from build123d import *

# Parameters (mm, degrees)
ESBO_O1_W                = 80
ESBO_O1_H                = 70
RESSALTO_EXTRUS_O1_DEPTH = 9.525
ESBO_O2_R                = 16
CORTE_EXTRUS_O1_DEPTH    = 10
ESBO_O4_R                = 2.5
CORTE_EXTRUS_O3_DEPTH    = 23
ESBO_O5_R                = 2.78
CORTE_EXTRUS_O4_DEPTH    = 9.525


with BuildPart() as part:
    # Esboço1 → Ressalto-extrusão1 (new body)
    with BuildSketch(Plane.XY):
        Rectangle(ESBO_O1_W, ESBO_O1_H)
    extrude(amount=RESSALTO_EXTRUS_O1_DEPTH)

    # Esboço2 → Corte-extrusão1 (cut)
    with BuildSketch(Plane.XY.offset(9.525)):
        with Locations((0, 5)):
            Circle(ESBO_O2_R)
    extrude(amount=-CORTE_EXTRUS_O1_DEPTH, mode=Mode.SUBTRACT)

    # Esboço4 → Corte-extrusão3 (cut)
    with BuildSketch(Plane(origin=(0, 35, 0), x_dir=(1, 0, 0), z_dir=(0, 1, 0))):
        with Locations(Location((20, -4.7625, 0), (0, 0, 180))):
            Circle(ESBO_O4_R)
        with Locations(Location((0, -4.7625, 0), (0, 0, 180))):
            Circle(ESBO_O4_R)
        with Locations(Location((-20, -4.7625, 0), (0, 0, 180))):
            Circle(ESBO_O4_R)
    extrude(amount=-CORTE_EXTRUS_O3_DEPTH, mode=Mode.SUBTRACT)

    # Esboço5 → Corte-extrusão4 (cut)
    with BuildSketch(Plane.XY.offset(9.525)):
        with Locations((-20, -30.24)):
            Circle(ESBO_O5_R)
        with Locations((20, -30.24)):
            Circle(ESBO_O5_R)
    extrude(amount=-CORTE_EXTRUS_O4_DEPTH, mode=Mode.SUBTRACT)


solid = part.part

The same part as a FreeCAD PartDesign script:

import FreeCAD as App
import Part
import Sketcher

doc = App.newDocument("Part")
body = doc.addObject("PartDesign::Body", "Body")

# Sketch on XY plane
sketch1 = doc.addObject("Sketcher::SketchObject", "Sketch")
body.addObject(sketch1)
sketch1.AttachmentSupport = (doc.XY_Plane, [""])
sketch1.MapMode = "FlatFace"
sketch1.addGeometry([
    Part.LineSegment(App.Vector(-40, 35, 0), App.Vector(-40, -35, 0)),
    Part.LineSegment(App.Vector(-40, -35, 0), App.Vector(40, -35, 0)),
    Part.LineSegment(App.Vector(40, -35, 0), App.Vector(40, 35, 0)),
    Part.LineSegment(App.Vector(40, 35, 0), App.Vector(-40, 35, 0)),
], False)
sketch1.addConstraint([
    Sketcher.Constraint("Coincident", 0, 2, 1, 1),
    Sketcher.Constraint("Coincident", 1, 2, 2, 1),
    Sketcher.Constraint("Coincident", 2, 2, 3, 1),
    Sketcher.Constraint("Coincident", 3, 2, 0, 1),
    Sketcher.Constraint("Vertical", 0),
    Sketcher.Constraint("Horizontal", 1),
    Sketcher.Constraint("Vertical", 2),
    Sketcher.Constraint("Horizontal", 3),
    Sketcher.Constraint("Symmetric", 0, 2, 2, 2, -1, 1),
    Sketcher.Constraint("DistanceX", 1, 1, 1, 2, 80.0),
    Sketcher.Constraint("DistanceY", 0, 2, 0, 1, 70.0),
])
pad1 = doc.addObject("PartDesign::Pad", "Pad")
body.addObject(pad1)
pad1.Profile = sketch1
pad1.Length = 9.525

# Sketch on XY plane
sketch2 = doc.addObject("Sketcher::SketchObject", "Sketch001")
body.addObject(sketch2)
sketch2.AttachmentSupport = (doc.XY_Plane, [""])
sketch2.MapMode = "FlatFace"
sketch2.AttachmentOffset = App.Placement(App.Vector(0, 0, 9.525), App.Rotation())
sketch2.addGeometry(Part.Circle(App.Vector(0, 5, 0), App.Vector(0, 0, 1), 16), False)
sketch2.addConstraint([
    Sketcher.Constraint("PointOnObject", 0, 3, -2),
    Sketcher.Constraint("Diameter", 0, 32.0),
    Sketcher.Constraint("DistanceY", -1, 1, 0, 3, 5.0),
])
pocket1 = doc.addObject("PartDesign::Pocket", "Pocket")
body.addObject(pocket1)
pocket1.Profile = sketch2
pocket1.Length = 10

# Sketch on XZ plane
sketch3 = doc.addObject("Sketcher::SketchObject", "Sketch002")
body.addObject(sketch3)
sketch3.AttachmentSupport = (doc.XZ_Plane, [""])
sketch3.MapMode = "FlatFace"
sketch3.AttachmentOffset = App.Placement(App.Vector(0, 0, -35), App.Rotation())
sketch3.addGeometry([
    Part.Circle(App.Vector(20, 4.8, 0), App.Vector(0, 0, 1), 2.5),
    Part.Circle(App.Vector(0, 4.8, 0), App.Vector(0, 0, 1), 2.5),
    Part.Circle(App.Vector(-20, 4.8, 0), App.Vector(0, 0, 1), 2.5),
], False)
sketch3.addConstraint([
    Sketcher.Constraint("Equal", 0, 1),
    Sketcher.Constraint("Equal", 1, 2),
    Sketcher.Constraint("Symmetric", 0, 3, 2, 3, -2),
    Sketcher.Constraint("PointOnObject", 1, 3, -2),
    Sketcher.Constraint("Horizontal", 0, 3, 1, 3),
    Sketcher.Constraint("Diameter", 0, 5.0),
    Sketcher.Constraint("DistanceX", -1, 1, 0, 3, 20.0),
    Sketcher.Constraint("DistanceY", -1, 1, 0, 3, 4.7625),
])
pocket2 = doc.addObject("PartDesign::Pocket", "Pocket001")
body.addObject(pocket2)
pocket2.Profile = sketch3
pocket2.Length = 23
pocket2.Reversed = True

# Sketch on XY plane
sketch4 = doc.addObject("Sketcher::SketchObject", "Sketch003")
body.addObject(sketch4)
sketch4.AttachmentSupport = (doc.XY_Plane, [""])
sketch4.MapMode = "FlatFace"
sketch4.AttachmentOffset = App.Placement(App.Vector(0, 0, 9.525), App.Rotation())
sketch4.addGeometry([
    Part.Circle(App.Vector(-20, -30.2, 0), App.Vector(0, 0, 1), 2.8),
    Part.Circle(App.Vector(20, -30.2, 0), App.Vector(0, 0, 1), 2.8),
], False)
sketch4.addConstraint([
    Sketcher.Constraint("Equal", 0, 1),
    Sketcher.Constraint("Symmetric", 0, 3, 1, 3, -2),
    Sketcher.Constraint("Diameter", 0, 5.56),
    Sketcher.Constraint("DistanceX", 0, 3, -1, 1, 20.0),
    Sketcher.Constraint("DistanceY", 0, 3, -1, 1, 30.24),
])
pocket3 = doc.addObject("PartDesign::Pocket", "Pocket002")
body.addObject(pocket3)
pocket3.Profile = sketch4
pocket3.Length = 9.525

doc.recompute()
